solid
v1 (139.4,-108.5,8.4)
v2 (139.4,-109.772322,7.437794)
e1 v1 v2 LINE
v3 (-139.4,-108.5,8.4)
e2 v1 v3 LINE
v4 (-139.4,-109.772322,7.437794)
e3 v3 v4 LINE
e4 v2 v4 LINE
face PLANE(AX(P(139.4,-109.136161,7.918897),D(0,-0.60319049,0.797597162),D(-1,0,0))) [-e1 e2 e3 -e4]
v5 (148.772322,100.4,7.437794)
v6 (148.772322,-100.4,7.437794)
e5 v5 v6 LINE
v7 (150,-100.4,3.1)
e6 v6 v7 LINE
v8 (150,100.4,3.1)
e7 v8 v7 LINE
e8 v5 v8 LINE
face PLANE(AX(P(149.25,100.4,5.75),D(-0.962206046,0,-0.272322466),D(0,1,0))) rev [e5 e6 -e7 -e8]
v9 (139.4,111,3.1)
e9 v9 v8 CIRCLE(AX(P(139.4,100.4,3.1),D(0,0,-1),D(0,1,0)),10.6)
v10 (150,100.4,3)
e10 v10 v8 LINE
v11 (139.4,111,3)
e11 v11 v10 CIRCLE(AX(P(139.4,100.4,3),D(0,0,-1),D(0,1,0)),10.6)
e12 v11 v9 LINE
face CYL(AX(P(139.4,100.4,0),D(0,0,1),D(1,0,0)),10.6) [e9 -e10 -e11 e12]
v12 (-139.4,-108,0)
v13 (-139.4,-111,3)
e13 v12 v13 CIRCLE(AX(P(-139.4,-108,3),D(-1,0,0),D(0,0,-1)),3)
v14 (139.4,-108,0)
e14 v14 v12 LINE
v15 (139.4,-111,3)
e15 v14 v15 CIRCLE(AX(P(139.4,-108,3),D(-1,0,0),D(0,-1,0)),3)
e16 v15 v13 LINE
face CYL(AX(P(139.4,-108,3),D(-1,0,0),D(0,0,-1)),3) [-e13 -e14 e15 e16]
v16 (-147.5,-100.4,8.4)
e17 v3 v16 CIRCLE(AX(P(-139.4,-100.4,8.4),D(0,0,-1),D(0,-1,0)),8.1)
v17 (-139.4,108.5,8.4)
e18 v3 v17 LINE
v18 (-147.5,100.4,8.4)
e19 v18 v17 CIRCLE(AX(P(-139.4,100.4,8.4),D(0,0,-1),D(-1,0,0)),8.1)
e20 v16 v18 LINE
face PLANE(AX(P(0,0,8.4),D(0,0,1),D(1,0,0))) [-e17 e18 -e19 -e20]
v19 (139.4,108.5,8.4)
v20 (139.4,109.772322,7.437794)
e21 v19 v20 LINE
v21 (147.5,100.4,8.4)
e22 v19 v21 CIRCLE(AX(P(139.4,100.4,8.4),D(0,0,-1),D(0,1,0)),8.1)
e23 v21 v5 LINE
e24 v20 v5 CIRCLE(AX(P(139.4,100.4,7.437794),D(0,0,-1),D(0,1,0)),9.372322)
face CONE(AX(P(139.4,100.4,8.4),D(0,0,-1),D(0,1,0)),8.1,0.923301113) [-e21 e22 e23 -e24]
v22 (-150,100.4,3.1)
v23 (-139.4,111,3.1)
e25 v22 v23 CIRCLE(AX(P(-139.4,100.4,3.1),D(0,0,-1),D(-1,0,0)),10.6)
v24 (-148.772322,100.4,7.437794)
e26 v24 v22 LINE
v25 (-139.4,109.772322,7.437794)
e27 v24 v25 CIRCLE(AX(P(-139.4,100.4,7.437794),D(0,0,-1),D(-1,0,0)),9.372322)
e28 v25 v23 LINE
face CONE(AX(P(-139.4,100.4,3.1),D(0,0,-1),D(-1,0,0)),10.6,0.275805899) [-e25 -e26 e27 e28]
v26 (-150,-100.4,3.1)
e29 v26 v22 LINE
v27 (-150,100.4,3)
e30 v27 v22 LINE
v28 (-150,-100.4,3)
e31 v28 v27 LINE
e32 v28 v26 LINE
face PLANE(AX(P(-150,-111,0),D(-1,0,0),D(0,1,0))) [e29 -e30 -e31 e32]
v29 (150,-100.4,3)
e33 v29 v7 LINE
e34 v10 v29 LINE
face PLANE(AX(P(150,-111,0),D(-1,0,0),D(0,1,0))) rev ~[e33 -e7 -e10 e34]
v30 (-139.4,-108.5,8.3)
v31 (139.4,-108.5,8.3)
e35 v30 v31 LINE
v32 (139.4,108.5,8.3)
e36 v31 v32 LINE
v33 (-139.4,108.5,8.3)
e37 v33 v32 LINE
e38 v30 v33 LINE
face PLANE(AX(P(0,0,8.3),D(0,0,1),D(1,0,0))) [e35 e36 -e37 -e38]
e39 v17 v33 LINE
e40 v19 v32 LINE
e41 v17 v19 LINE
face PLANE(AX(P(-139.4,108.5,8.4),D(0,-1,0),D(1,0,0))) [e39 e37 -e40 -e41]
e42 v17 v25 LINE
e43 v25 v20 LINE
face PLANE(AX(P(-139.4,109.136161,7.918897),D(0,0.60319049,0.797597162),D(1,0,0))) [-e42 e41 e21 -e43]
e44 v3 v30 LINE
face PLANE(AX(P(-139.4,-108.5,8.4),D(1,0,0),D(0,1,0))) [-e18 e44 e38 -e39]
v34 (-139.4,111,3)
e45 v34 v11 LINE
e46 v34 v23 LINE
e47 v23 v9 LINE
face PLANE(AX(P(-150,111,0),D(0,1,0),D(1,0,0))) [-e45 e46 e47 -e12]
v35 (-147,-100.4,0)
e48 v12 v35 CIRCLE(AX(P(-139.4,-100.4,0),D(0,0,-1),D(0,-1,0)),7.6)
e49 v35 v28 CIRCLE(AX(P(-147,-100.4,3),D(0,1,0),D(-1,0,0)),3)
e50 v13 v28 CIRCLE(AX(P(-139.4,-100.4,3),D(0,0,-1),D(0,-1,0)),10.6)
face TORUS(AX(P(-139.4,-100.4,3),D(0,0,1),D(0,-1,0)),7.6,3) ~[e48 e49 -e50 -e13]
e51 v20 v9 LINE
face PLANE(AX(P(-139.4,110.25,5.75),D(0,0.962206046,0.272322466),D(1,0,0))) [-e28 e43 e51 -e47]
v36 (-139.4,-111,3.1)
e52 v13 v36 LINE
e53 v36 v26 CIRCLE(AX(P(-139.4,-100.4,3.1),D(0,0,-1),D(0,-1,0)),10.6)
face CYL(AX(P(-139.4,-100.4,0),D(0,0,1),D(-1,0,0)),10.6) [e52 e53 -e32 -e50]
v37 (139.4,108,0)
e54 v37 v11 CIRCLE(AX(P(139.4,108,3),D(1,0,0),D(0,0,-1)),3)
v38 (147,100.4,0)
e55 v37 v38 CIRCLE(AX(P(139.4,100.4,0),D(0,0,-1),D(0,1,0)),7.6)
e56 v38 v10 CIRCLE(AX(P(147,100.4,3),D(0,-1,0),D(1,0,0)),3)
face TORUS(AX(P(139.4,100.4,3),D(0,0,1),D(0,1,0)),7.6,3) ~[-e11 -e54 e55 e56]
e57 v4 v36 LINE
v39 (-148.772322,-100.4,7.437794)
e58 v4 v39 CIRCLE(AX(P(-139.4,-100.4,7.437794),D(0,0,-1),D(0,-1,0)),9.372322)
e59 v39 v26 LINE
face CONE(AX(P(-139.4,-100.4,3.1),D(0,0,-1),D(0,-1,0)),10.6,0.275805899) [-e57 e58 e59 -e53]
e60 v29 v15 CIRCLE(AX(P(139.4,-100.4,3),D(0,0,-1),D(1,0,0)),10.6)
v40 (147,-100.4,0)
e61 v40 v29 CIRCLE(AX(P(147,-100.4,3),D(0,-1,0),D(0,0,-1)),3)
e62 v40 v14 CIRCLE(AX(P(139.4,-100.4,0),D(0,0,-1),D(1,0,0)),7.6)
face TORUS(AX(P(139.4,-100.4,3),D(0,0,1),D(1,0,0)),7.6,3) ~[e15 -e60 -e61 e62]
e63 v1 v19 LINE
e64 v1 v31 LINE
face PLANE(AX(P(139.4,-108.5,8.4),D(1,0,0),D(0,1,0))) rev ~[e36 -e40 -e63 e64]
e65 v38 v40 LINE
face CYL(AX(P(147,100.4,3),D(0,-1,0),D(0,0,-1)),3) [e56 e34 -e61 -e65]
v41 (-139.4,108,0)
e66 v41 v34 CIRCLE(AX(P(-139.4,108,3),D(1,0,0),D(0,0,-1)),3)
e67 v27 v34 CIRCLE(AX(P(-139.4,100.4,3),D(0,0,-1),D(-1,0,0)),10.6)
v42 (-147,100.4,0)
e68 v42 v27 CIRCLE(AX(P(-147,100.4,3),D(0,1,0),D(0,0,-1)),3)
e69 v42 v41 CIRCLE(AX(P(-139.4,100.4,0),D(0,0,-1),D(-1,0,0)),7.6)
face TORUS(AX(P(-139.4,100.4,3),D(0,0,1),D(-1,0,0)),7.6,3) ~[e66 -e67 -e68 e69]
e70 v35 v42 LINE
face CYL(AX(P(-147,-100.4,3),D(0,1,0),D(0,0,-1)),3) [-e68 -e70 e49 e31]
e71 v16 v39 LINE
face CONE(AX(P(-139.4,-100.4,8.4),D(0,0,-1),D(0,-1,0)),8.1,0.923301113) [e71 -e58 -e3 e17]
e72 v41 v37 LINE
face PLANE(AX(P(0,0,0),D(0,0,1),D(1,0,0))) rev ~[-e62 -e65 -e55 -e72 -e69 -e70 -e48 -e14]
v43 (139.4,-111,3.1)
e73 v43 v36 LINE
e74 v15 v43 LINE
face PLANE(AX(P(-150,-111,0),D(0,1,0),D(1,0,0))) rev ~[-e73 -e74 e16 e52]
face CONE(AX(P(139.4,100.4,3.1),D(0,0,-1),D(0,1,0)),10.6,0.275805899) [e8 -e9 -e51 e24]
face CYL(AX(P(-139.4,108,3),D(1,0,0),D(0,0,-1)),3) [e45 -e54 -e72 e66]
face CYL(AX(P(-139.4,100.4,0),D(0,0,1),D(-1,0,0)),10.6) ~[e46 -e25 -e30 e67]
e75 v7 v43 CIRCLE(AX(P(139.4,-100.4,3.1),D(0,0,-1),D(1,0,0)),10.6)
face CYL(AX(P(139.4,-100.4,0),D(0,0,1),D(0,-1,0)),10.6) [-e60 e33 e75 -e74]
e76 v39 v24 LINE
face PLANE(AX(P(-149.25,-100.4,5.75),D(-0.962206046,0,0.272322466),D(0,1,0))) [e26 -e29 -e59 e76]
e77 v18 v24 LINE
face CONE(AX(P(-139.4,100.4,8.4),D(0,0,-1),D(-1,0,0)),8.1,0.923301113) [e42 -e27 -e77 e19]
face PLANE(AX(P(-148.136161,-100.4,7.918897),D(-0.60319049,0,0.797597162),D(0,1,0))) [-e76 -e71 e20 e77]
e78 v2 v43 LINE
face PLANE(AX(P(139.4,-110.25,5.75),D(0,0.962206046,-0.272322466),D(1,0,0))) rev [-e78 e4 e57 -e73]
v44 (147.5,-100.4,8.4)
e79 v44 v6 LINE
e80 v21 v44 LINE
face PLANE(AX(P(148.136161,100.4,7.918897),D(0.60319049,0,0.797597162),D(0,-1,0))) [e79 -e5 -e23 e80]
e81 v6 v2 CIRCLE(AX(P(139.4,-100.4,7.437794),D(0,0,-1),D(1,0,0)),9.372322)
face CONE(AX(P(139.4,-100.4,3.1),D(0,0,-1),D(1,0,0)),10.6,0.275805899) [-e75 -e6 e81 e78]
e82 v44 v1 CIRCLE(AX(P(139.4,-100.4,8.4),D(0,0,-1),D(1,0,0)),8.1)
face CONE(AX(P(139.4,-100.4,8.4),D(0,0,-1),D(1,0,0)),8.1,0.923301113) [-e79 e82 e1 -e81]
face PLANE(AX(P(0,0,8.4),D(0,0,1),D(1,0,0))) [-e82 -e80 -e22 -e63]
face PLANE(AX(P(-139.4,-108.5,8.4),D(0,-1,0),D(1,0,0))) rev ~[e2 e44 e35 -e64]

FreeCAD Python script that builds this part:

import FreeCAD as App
import Part
import Sketcher


def edges_at(feature, points):
    """Names of the edges that pass closest to the given points."""
    edges = feature.Shape.Edges
    near = lambda p: min(range(len(edges)), key=lambda i: edges[i].distToShape(Part.Vertex(*p))[0])
    return sorted({f"Edge{near(p) + 1}" for p in points})

doc = App.newDocument("Part")
body = doc.addObject("PartDesign::Body", "Body")

# Sketch on XY plane
sketch1 = body.newObject("Sketcher::SketchObject", "Sketch")
sketch1.AttachmentSupport = (doc.getObject("XY_Plane"), [""])
sketch1.MapMode = "FlatFace"
sketch1.addGeometry([
    Part.LineSegment(App.Vector(-150, 111, 0), App.Vector(-150, -111, 0)),
    Part.LineSegment(App.Vector(-150, -111, 0), App.Vector(150, -111, 0)),
    Part.LineSegment(App.Vector(150, -111, 0), App.Vector(150, 111, 0)),
    Part.LineSegment(App.Vector(150, 111, 0), App.Vector(-150, 111, 0)),
], False)
sketch1.addConstraint([
    Sketcher.Constraint("Coincident", 0, 2, 1, 1),
    Sketcher.Constraint("Coincident", 1, 2, 2, 1),
    Sketcher.Constraint("Coincident", 2, 2, 3, 1),
    Sketcher.Constraint("Coincident", 3, 2, 0, 1),
    Sketcher.Constraint("Vertical", 0),
    Sketcher.Constraint("Horizontal", 1),
    Sketcher.Constraint("Vertical", 2),
    Sketcher.Constraint("Horizontal", 3),
    Sketcher.Constraint("Symmetric", 0, 2, 2, 2, -1, 1),
    Sketcher.Constraint("DistanceX", 1, 1, 1, 2, 300.0),
    Sketcher.Constraint("DistanceY", 0, 2, 0, 1, 222.0),
])
pad1 = body.newObject("PartDesign::Pad", "Pad")
pad1.Profile = sketch1
pad1.Length = 8.4
doc.recompute()

fillet = body.newObject("PartDesign::Fillet", "Fillet")
fillet.Base = (pad1, edges_at(pad1, [
    (-150, 111, 4.2),
    (-150, -111, 4.2),
    (150, -111, 4.2),
    (150, 111, 4.2),
]))
fillet.Radius = 10.6
doc.recompute()

fillet2 = body.newObject("PartDesign::Fillet", "Fillet001")
fillet2.Base = (fillet, edges_at(fillet, [(0, 111, 0), (146.895, 107.895, 0), (150, 0, 0)]))
fillet2.Radius = 3
doc.recompute()

chamfer = body.newObject("PartDesign::Chamfer", "Chamfer")
chamfer.Base = (fillet2, edges_at(fillet2, [(-150, 0, 8.4), (-146.895, 107.895, 8.4), (0, 111, 8.4)]))
chamfer.ChamferType = "Two distances"
chamfer.Size = 1.5
chamfer.Size2 = 5.3
doc.recompute()

chamfer2 = body.newObject("PartDesign::Chamfer", "Chamfer001")
chamfer2.Base = (chamfer, edges_at(chamfer, [(0, 109.5, 8.4)]))
chamfer2.Size = 1

# Sketch on XY plane
sketch2 = body.newObject("Sketcher::SketchObject", "Sketch001")
sketch2.AttachmentSupport = (doc.getObject("XY_Plane"), [""])
sketch2.MapMode = "FlatFace"
sketch2.AttachmentOffset = App.Placement(App.Vector(0, 0, 8.4), App.Rotation())
sketch2.addGeometry([
    Part.LineSegment(App.Vector(-139.4, 108.5, 0), App.Vector(-139.4, -108.5, 0)),
    Part.LineSegment(App.Vector(-139.4, -108.5, 0), App.Vector(139.4, -108.5, 0)),
    Part.LineSegment(App.Vector(139.4, -108.5, 0), App.Vector(139.4, 108.5, 0)),
    Part.LineSegment(App.Vector(139.4, 108.5, 0), App.Vector(-139.4, 108.5, 0)),
], False)
sketch2.addConstraint([
    Sketcher.Constraint("Coincident", 0, 2, 1, 1),
    Sketcher.Constraint("Coincident", 1, 2, 2, 1),
    Sketcher.Constraint("Coincident", 2, 2, 3, 1),
    Sketcher.Constraint("Coincident", 3, 2, 0, 1),
    Sketcher.Constraint("Vertical", 0),
    Sketcher.Constraint("Horizontal", 1),
    Sketcher.Constraint("Vertical", 2),
    Sketcher.Constraint("Horizontal", 3),
    Sketcher.Constraint("Symmetric", 0, 2, 2, 2, -1, 1),
    Sketcher.Constraint("DistanceY", 0, 2, 0, 1, 217.0),
    Sketcher.Constraint("DistanceX", 1, 1, 1, 2, 278.8),
])
pocket1 = body.newObject("PartDesign::Pocket", "Pocket")
pocket1.Profile = sketch2
pocket1.Length = 0.1

doc.recompute()
